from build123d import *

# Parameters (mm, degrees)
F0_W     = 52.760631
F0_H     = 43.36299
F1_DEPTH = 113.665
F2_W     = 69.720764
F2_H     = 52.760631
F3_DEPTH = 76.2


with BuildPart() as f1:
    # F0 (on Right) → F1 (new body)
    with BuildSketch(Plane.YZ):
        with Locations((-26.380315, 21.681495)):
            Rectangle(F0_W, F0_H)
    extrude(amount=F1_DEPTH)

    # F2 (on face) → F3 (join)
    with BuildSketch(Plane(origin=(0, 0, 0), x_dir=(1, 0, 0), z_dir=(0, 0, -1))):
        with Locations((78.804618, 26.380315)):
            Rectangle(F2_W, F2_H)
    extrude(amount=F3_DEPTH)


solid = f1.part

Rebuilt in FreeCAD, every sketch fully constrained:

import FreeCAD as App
import Part
import Sketcher

V = App.Vector
Q = App.Units.Quantity


def add_polygon(sketch, points):
    """Adds a closed chain of lines whose ends are joined by coincident constraints."""
    first, n = sketch.GeometryCount, len(points)
    for a, b in zip(points, points[1:] + points[:1]):
        sketch.addGeometry(Part.LineSegment(App.Vector(*a, 0), App.Vector(*b, 0)), False)
    for i in range(n):
        sketch.addConstraint(Sketcher.Constraint("Coincident", first + i, 2, first + (i + 1) % n, 1))

doc = App.newDocument("Part")
body = doc.addObject("PartDesign::Body", "Body")

# Sketch on YZ plane
sketch1 = body.newObject("Sketcher::SketchObject", "Sketch")
sketch1.AttachmentSupport = (doc.getObject("YZ_Plane"), [""])
sketch1.MapMode = "FlatFace"
add_polygon(sketch1, [(-53, 43), (-53, 0), (0, 0), (0, 43)])  # lines 0-3
sketch1.addConstraint([
    Sketcher.Constraint("Vertical", 0),
    Sketcher.Constraint("Horizontal", 1),
    Sketcher.Constraint("Vertical", 2),
    Sketcher.Constraint("Horizontal", 3),
    Sketcher.Constraint("Coincident", 1, 2, -1, 1),
    Sketcher.Constraint("DistanceX", 1, 1, 1, 2, 52.760631),
    Sketcher.Constraint("DistanceY", 0, 2, 0, 1, 43.36299),
])
pad1 = body.newObject("PartDesign::Pad", "Pad")
pad1.Profile = sketch1
pad1.Length = Q("4.475 in")

# Sketch on XY plane
sketch2 = body.newObject("Sketcher::SketchObject", "Sketch001")
sketch2.AttachmentSupport = (doc.getObject("XY_Plane"), [""])
sketch2.MapMode = "FlatFace"
add_polygon(sketch2, [(44, -53), (44, 0), (114, 0), (114, -53)])  # lines 0-3
sketch2.addConstraint([
    Sketcher.Constraint("Vertical", 0),
    Sketcher.Constraint("Horizontal", 1),
    Sketcher.Constraint("Vertical", 2),
    Sketcher.Constraint("Horizontal", 3),
    Sketcher.Constraint("PointOnObject", 0, 2, -1),
    Sketcher.Constraint("DistanceX", -1, 1, 1, 2, Q("4.475 in")),
    Sketcher.Constraint("DistanceY", 0, 1, 0, 2, 52.760631),
    Sketcher.Constraint("DistanceX", 1, 1, 1, 2, 69.720764),
])
pad2 = body.newObject("PartDesign::Pad", "Pad001")
pad2.Profile = sketch2
pad2.Length = Q("3 in")
pad2.Reversed = True

doc.recompute()
